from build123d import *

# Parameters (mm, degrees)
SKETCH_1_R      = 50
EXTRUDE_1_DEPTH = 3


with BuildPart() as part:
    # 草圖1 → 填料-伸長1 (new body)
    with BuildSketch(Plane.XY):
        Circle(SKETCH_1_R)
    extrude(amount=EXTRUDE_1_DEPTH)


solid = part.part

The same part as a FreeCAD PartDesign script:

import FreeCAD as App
import Part
import Sketcher
from FreeCAD import Vector
Q = App.Units.Quantity

doc = App.newDocument("Part")
body = doc.addObject("PartDesign::Body", "Body")

sketch1 = body.newObject("Sketcher::SketchObject", "Sketch")
sketch1.AttachmentSupport = (doc.getObject("XY_Plane"), [""])
sketch1.MapMode = "FlatFace"
sketch1.addGeometry(Part.Circle(Vector(0, 0, 0), Vector(0, 0, 1), 50), False)
sketch1.addConstraint(Sketcher.Constraint("Coincident", 0, 3, -1, 1))
sketch1.addConstraint(Sketcher.Constraint("Diameter", 0, Q("100 mm")))
pad1 = body.newObject("PartDesign::Pad", "Pad")
pad1.Profile = sketch1
pad1.Length = 3

doc.recompute()
